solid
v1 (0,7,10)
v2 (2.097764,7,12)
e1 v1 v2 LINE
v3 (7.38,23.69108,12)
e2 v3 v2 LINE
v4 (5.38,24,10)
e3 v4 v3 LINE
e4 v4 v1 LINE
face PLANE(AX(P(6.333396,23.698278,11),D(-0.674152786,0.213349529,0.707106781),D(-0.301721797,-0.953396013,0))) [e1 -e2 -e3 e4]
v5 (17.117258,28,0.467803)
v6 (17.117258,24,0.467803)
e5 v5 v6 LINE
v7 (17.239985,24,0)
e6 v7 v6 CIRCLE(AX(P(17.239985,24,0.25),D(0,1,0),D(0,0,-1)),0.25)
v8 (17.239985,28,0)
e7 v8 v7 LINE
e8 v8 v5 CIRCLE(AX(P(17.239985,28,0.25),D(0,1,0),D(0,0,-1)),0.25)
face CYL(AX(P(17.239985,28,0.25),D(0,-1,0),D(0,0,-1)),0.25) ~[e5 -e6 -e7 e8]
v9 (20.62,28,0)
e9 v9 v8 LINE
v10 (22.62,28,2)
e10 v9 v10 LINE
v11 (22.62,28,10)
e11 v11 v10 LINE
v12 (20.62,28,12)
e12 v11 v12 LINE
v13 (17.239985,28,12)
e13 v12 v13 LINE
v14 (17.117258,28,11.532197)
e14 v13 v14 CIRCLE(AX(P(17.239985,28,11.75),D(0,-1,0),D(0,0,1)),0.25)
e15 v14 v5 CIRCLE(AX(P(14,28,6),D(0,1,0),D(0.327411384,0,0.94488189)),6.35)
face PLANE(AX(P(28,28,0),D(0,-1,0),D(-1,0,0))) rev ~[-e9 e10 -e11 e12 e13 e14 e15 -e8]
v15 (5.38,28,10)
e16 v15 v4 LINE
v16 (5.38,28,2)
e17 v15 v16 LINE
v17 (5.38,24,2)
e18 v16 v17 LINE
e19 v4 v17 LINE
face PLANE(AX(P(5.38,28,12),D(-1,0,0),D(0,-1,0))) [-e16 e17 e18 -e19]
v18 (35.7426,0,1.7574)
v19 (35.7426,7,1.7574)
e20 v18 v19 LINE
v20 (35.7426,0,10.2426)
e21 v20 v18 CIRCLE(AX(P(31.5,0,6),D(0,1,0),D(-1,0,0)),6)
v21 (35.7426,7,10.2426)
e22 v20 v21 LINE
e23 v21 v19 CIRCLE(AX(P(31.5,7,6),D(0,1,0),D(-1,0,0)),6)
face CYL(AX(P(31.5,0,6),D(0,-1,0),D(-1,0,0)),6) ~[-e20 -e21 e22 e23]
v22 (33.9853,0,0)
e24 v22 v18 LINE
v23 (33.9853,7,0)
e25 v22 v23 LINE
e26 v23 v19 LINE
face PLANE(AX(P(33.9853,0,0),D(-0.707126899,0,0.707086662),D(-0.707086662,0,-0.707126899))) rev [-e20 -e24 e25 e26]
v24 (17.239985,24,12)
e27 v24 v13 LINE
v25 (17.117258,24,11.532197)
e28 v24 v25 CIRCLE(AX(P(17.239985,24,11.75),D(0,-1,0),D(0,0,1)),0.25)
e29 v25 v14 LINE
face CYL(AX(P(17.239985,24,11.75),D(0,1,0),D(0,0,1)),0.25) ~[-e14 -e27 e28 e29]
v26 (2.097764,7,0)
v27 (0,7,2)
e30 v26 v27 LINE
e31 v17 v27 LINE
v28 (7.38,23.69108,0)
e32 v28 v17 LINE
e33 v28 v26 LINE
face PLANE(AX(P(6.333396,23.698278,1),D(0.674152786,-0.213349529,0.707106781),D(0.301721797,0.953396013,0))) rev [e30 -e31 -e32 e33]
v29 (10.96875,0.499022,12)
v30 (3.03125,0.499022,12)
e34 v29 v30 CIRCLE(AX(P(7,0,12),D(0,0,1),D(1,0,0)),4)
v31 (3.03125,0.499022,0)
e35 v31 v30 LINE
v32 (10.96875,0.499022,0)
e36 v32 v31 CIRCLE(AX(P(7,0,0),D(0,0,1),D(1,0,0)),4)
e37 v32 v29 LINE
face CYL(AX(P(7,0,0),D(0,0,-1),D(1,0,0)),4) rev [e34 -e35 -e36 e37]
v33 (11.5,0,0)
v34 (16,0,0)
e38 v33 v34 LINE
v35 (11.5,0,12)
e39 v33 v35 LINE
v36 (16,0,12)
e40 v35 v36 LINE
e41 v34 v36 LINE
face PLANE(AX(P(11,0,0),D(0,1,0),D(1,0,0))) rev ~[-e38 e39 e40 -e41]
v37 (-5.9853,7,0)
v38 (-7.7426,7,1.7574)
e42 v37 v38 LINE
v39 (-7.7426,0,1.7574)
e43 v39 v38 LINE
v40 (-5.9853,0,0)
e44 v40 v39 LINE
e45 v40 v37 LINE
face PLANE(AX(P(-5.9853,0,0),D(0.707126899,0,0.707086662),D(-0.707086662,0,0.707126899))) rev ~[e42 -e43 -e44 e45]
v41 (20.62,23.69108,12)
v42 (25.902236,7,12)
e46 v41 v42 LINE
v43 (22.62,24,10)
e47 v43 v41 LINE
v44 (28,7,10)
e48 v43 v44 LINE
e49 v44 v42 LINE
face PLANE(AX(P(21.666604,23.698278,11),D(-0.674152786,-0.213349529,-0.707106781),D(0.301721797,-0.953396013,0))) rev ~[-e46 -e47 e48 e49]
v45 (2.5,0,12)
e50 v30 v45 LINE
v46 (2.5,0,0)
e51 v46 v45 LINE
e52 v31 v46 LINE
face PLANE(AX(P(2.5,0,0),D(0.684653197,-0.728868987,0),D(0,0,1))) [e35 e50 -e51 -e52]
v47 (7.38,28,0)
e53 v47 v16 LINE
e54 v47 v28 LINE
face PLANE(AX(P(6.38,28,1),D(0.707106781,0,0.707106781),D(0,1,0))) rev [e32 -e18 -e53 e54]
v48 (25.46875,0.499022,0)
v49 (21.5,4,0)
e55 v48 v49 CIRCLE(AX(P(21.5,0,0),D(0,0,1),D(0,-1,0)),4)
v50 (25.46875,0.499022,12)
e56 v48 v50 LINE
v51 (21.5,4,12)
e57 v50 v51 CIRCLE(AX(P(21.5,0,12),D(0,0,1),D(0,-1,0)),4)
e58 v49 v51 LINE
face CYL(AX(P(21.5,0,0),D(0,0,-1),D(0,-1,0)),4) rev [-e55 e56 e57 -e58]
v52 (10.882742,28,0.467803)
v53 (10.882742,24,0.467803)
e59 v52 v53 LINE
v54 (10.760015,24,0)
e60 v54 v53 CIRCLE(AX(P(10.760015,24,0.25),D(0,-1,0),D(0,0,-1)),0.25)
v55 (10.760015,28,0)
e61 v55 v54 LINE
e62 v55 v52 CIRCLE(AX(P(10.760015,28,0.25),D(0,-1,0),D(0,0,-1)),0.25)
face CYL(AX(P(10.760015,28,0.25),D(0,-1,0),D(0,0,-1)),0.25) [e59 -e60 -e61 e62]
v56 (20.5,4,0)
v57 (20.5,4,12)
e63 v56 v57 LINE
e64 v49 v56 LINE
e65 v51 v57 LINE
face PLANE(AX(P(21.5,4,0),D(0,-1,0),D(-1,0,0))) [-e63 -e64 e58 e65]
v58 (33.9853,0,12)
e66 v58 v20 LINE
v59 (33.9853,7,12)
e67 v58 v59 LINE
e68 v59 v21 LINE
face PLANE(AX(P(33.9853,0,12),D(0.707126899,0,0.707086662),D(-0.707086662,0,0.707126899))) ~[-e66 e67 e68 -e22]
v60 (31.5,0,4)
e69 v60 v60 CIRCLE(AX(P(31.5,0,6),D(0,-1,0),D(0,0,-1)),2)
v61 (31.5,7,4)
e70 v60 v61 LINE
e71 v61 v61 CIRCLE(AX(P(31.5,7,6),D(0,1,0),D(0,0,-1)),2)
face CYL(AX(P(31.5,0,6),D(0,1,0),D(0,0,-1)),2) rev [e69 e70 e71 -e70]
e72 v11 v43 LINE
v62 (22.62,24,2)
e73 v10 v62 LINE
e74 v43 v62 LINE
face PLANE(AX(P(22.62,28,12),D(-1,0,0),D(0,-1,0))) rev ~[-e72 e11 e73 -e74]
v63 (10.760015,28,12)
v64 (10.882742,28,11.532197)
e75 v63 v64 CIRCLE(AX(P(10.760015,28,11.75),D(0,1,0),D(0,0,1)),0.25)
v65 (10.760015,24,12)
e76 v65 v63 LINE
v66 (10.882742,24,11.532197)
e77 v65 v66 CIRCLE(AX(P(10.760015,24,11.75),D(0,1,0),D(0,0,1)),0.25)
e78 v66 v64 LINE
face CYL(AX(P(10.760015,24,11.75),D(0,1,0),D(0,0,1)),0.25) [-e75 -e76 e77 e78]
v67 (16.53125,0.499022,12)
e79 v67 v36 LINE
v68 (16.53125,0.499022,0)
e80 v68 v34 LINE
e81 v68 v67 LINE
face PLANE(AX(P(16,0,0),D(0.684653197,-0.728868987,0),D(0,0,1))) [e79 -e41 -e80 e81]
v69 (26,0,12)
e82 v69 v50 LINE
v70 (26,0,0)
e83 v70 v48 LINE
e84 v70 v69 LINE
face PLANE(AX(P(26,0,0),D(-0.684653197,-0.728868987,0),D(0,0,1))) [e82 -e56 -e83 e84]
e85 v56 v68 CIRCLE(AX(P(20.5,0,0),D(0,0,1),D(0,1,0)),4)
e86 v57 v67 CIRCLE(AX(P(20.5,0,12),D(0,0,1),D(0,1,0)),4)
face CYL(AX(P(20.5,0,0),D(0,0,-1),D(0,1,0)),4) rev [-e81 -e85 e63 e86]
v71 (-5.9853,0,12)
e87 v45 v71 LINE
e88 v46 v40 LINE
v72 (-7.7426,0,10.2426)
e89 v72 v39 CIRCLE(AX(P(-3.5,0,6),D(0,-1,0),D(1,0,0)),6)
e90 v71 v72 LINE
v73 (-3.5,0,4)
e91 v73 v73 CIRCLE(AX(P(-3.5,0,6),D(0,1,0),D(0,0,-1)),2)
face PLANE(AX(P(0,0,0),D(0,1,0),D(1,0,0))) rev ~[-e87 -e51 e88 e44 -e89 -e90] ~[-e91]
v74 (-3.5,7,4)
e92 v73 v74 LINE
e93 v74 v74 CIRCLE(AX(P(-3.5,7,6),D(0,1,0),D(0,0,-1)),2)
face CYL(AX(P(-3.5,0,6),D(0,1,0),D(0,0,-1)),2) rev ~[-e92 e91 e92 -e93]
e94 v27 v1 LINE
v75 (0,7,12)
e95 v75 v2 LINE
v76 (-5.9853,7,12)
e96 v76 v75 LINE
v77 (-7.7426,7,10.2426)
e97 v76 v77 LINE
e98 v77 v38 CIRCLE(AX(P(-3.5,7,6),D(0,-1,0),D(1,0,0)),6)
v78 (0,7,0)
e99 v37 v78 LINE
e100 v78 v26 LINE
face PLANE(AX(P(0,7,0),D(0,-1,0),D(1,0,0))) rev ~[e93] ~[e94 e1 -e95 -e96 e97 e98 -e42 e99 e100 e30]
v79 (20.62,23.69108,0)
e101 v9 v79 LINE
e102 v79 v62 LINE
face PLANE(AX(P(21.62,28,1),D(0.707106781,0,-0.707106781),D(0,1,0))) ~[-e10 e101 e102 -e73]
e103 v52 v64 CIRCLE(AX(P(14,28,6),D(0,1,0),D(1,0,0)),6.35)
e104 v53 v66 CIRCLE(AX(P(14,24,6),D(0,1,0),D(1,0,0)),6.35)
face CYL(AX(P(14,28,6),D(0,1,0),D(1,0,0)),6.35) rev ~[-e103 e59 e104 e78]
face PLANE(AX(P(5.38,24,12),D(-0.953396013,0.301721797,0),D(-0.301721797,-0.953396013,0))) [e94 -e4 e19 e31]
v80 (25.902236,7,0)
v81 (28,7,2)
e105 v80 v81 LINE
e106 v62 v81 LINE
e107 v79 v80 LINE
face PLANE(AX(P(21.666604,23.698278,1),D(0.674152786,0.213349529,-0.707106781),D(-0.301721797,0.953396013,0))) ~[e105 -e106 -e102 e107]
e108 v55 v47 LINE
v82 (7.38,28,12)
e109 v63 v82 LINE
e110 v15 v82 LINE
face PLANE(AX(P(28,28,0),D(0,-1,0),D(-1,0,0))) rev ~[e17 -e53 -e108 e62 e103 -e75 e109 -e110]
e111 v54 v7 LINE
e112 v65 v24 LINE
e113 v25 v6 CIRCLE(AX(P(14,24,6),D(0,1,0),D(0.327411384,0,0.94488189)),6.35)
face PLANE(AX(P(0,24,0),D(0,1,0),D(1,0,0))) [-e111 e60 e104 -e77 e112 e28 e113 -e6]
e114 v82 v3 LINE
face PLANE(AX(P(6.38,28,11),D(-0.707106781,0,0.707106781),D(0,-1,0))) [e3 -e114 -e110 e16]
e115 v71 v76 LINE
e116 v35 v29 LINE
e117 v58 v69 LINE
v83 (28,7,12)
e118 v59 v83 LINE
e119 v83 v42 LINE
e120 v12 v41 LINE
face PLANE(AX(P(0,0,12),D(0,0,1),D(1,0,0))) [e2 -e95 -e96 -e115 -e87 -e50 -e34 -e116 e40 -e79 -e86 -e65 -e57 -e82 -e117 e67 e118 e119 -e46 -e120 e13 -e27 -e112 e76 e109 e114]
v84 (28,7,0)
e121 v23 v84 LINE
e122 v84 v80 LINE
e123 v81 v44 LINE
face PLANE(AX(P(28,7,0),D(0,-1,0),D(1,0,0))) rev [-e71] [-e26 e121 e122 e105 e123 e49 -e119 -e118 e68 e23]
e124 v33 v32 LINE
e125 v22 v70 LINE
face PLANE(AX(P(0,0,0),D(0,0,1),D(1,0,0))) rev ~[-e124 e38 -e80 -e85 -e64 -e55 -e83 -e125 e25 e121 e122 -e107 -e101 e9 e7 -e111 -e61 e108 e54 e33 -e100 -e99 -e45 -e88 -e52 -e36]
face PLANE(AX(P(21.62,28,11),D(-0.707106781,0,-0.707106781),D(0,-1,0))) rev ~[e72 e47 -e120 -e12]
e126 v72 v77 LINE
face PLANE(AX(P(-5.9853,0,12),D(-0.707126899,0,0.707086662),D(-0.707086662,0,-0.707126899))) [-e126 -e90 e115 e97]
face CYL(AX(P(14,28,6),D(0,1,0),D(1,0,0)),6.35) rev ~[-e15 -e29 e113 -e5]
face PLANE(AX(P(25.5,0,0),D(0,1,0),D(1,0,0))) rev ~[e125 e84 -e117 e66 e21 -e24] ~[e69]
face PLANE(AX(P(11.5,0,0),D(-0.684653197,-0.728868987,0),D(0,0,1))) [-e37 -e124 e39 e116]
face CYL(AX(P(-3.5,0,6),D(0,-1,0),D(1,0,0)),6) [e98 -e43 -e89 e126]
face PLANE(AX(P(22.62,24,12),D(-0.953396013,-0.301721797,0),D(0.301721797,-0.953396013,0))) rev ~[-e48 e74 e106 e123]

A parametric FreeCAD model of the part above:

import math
import FreeCAD as App
import Part
import Sketcher
from FreeCAD import Vector
Q = App.Units.Quantity


def edges_at(feature, points):
    """Names of the edges that pass closest to the given points."""
    edges = feature.Shape.Edges
    near = lambda p: min(range(len(edges)), key=lambda i: edges[i].distToShape(Part.Vertex(*p))[0])
    return sorted({f"Edge{near(p) + 1}" for p in points})

doc = App.newDocument("Part")
body = doc.addObject("PartDesign::Body", "Body")

sketch1 = body.newObject("Sketcher::SketchObject", "Sketch")
sketch1.AttachmentSupport = (doc.getObject("XY_Plane"), [""])
sketch1.MapMode = "FlatFace"
sketch1.addGeometry([
    Part.LineSegment(Vector(0, 28, 0), Vector(0, 0, 0)),
    Part.LineSegment(Vector(0, 0, 0), Vector(3, 0, 0)),
    Part.ArcOfCircle(Part.Circle(Vector(7, 0, 0), Vector(0, 0, 1), 4), math.radians(0), math.radians(180)),
    Part.LineSegment(Vector(11, 0, 0), Vector(16.5, 0, 0)),
    Part.ArcOfCircle(Part.Circle(Vector(20.5, 0, 0), Vector(0, 0, 1), 4), math.radians(90), math.radians(180)),
    Part.LineSegment(Vector(20.5, 4, 0), Vector(21.5, 4, 0)),
    Part.ArcOfCircle(Part.Circle(Vector(21.5, 0, 0), Vector(0, 0, 1), 4), math.radians(0), math.radians(90)),
    Part.LineSegment(Vector(25.5, 0, 0), Vector(28, 0, 0)),
    Part.LineSegment(Vector(28, 0, 0), Vector(28, 28, 0)),
    Part.LineSegment(Vector(28, 28, 0), Vector(0, 28, 0)),
], False)
sketch1.addConstraint([
    Sketcher.Constraint("Coincident", 0, 2, 1, 1),
    Sketcher.Constraint("Coincident", 1, 2, 2, 2),
    Sketcher.Constraint("Coincident", 2, 1, 3, 1),
    Sketcher.Constraint("Coincident", 3, 2, 4, 2),
    Sketcher.Constraint("Tangent", 4, 1, 5, 1),
    Sketcher.Constraint("Tangent", 5, 2, 6, 2),
    Sketcher.Constraint("Coincident", 6, 1, 7, 1),
    Sketcher.Constraint("Coincident", 7, 2, 8, 1),
    Sketcher.Constraint("Coincident", 8, 2, 9, 1),
    Sketcher.Constraint("Coincident", 9, 2, 0, 1),
    Sketcher.Constraint("Vertical", 0),
    Sketcher.Constraint("Horizontal", 1),
    Sketcher.Constraint("Horizontal", 3),
    Sketcher.Constraint("Horizontal", 5),
    Sketcher.Constraint("Horizontal", 7),
    Sketcher.Constraint("Vertical", 8),
    Sketcher.Constraint("Horizontal", 9),
    Sketcher.Constraint("Coincident", 0, 2, -1, 1),
    Sketcher.Constraint("Equal", 2, 4),
    Sketcher.Constraint("Equal", 4, 6),
    Sketcher.Constraint("PointOnObject", 2, 3, -1),
    Sketcher.Constraint("PointOnObject", 4, 3, -1),
    Sketcher.Constraint("PointOnObject", 2, 1, -1),
    Sketcher.Constraint("PointOnObject", 6, 1, -1),
    Sketcher.Constraint("Equal", 9, 0),
    Sketcher.Constraint("Radius", 2, Q("4 mm")),
    Sketcher.Constraint("DistanceX", 5, 1, 5, 2, Q("1 mm")),
    Sketcher.Constraint("DistanceX", 9, 2, 9, 1, Q("28 mm")),
    Sketcher.Constraint("DistanceX", -1, 1, 2, 3, Q("7 mm")),
    Sketcher.Constraint("DistanceX", 3, 1, 3, 2, Q("5.5 mm")),
])
pad1 = body.newObject("PartDesign::Pad", "Pad")
pad1.Profile = sketch1
pad1.Length = 12
doc.recompute()

chamfer = body.newObject("PartDesign::Chamfer", "Chamfer")
chamfer.Base = (pad1, edges_at(pad1, [
    (3, 0, 6),
    (11, 0, 6),
    (16.5, 0, 6),
    (25.5, 0, 6),
]))
chamfer.Size = 0.5

sketch2 = body.newObject("Sketcher::SketchObject", "Sketch001")
sketch2.AttachmentSupport = (doc.getObject("XZ_Plane"), [""])
sketch2.MapMode = "FlatFace"
sketch2.AttachmentOffset = App.Placement(Vector(0, 0, -28), App.Rotation())
sketch2.addGeometry([
    Part.ArcOfCircle(Part.Circle(Vector(14, 6, 0), Vector(0, 0, 1), 6.3), math.radians(-71), math.radians(251)),
    Part.LineSegment(Vector(16.1, 0, 0), Vector(11.9, 0, 0)),
], False)
sketch2.addConstraint([
    Sketcher.Constraint("Coincident", 0, 1, 1, 1),
    Sketcher.Constraint("Coincident", 1, 2, 0, 2),
    Sketcher.Constraint("Horizontal", 1),
    Sketcher.Constraint("PointOnObject", 0, 1, -1),
    Sketcher.Constraint("Radius", 0, Q("6.35 mm")),
    Sketcher.Constraint("DistanceX", -1, 1, 0, 3, Q("14 mm")),
    Sketcher.Constraint("DistanceY", -1, 1, 0, 3, Q("6 mm")),
])
pocket1 = body.newObject("PartDesign::Pocket", "Pocket")
pocket1.Profile = sketch2
pocket1.Length = 4
pocket1.Reversed = True
doc.recompute()

fillet = body.newObject("PartDesign::Fillet", "Fillet")
fillet.Base = (pocket1, edges_at(pocket1, [
    (11.921, 26, 0),
    (16.079, 26, 0),
    (11.921, 26, 12),
    (16.079, 26, 12),
]))
fillet.Radius = 0.25

sketch3 = body.newObject("Sketcher::SketchObject", "Sketch002")
sketch3.AttachmentSupport = (doc.getObject("XZ_Plane"), [""])
sketch3.MapMode = "FlatFace"
sketch3.addGeometry([
    Part.LineSegment(Vector(0, 12, 0), Vector(-6, 12, 0)),
    Part.LineSegment(Vector(-6, 12, 0), Vector(-7.7, 10.2, 0)),
    Part.ArcOfCircle(Part.Circle(Vector(-3.5, 6, 0), Vector(0, 0, 1), 6), math.radians(135), math.radians(225)),
    Part.LineSegment(Vector(-7.7, 1.8, 0), Vector(-6, 0, 0)),
    Part.LineSegment(Vector(-6, 0, 0), Vector(0, 0, 0)),
    Part.LineSegment(Vector(0, 0, 0), Vector(0, 12, 0)),
], False)
sketch3.addConstraint([
    Sketcher.Constraint("Coincident", 0, 2, 1, 1),
    Sketcher.Constraint("Tangent", 1, 2, 2, 1),
    Sketcher.Constraint("Tangent", 2, 2, 3, 1),
    Sketcher.Constraint("Coincident", 3, 2, 4, 1),
    Sketcher.Constraint("Coincident", 4, 2, 5, 1),
    Sketcher.Constraint("Coincident", 5, 2, 0, 1),
    Sketcher.Constraint("Horizontal", 0),
    Sketcher.Constraint("Horizontal", 4),
    Sketcher.Constraint("Vertical", 5),
    Sketcher.Constraint("Coincident", 4, 2, -1, 1),
    Sketcher.Constraint("Perpendicular", 1, 3),
    Sketcher.Constraint("Vertical", 1, 2, 2, 2),
    Sketcher.Constraint("Vertical", 0, 2, 3, 2),
    Sketcher.Constraint("Radius", 2, Q("6 mm")),
    Sketcher.Constraint("DistanceY", 5, 1, 5, 2, Q("12 mm")),
    Sketcher.Constraint("DistanceX", 2, 3, -1, 1, Q("3.5 mm")),
])
pad2 = body.newObject("PartDesign::Pad", "Pad001")
pad2.Profile = sketch3
pad2.Length = 7
pad2.Reversed = True

sketch4 = body.newObject("Sketcher::SketchObject", "Sketch003")
sketch4.AttachmentSupport = (doc.getObject("XZ_Plane"), [""])
sketch4.MapMode = "FlatFace"
sketch4.addGeometry(Part.Circle(Vector(-3.5, 6, 0), Vector(0, 0, 1), 2), False)
sketch4.addConstraint([
    Sketcher.Constraint("Diameter", 0, Q("4 mm")),
    Sketcher.Constraint("DistanceY", -1, 1, 0, 3, Q("6 mm")),
    Sketcher.Constraint("DistanceX", 0, 3, -1, 1, Q("3.5 mm")),
])
doc.recompute()
hole = body.newObject("PartDesign::Hole", "Hole")
hole.Profile = sketch4
hole.ThreadType = "None"
hole.Diameter = 4
hole.DepthType = "ThroughAll"
doc.recompute()

datumplane = body.newObject("PartDesign::Plane", "DatumPlane")
datumplane.AttachmentSupport = (doc.getObject("YZ_Plane"), [""])
datumplane.MapMode = "FlatFace"
datumplane.AttachmentOffset = App.Placement(Vector(0, 0, 14), App.Rotation())
mirrored = body.newObject("PartDesign::Mirrored", "Mirrored")
mirrored.Originals = [pad2, hole]
mirrored.MirrorPlane = (datumplane, [""])
body.Tip = mirrored

sketch5 = body.newObject("Sketcher::SketchObject", "Sketch004")
sketch5.AttachmentSupport = (doc.getObject("XY_Plane"), [""])
sketch5.MapMode = "FlatFace"
sketch5.AttachmentOffset = App.Placement(Vector(0, 0, 12), App.Rotation())
sketch5.addGeometry([
    Part.LineSegment(Vector(28, 7, 0), Vector(28, 28, 0)),
    Part.LineSegment(Vector(28, 28, 0), Vector(22.6, 28, 0)),
    Part.LineSegment(Vector(22.6, 28, 0), Vector(22.6, 24, 0)),
    Part.LineSegment(Vector(22.6, 24, 0), Vector(28, 7, 0)),
    Part.LineSegment(Vector(5.4, 24, 0), Vector(5.4, 28, 0)),
    Part.LineSegment(Vector(5.4, 28, 0), Vector(0, 28, 0)),
    Part.LineSegment(Vector(0, 28, 0), Vector(0, 7, 0)),
    Part.LineSegment(Vector(0, 7, 0), Vector(5.4, 24, 0)),
], False)
sketch5.addConstraint([
    Sketcher.Constraint("Coincident", 0, 2, 1, 1),
    Sketcher.Constraint("Coincident", 1, 2, 2, 1),
    Sketcher.Constraint("Coincident", 2, 2, 3, 1),
    Sketcher.Constraint("Coincident", 3, 2, 0, 1),
    Sketcher.Constraint("Coincident", 4, 2, 5, 1),
    Sketcher.Constraint("Coincident", 5, 2, 6, 1),
    Sketcher.Constraint("Coincident", 6, 2, 7, 1),
    Sketcher.Constraint("Coincident", 7, 2, 4, 1),
    Sketcher.Constraint("Vertical", 0),
    Sketcher.Constraint("Horizontal", 1),
    Sketcher.Constraint("Vertical", 2),
    Sketcher.Constraint("Vertical", 4),
    Sketcher.Constraint("Horizontal", 5),
    Sketcher.Constraint("Vertical", 6),
    Sketcher.Constraint("PointOnObject", 5, 2, -2),
    Sketcher.Constraint("Horizontal", 1, 2, 4, 2),
    Sketcher.Constraint("Horizontal", 3, 2, 6, 2),
    Sketcher.Constraint("Horizontal", 2, 2, 7, 2),
    Sketcher.Constraint("Equal", 1, 5),
    Sketcher.Constraint("DistanceY", 0, 1, 0, 2, Q("21 mm")),
    Sketcher.Constraint("DistanceY", 2, 2, 2, 1, Q("4 mm")),
    Sketcher.Constraint("DistanceX", -1, 1, 0, 2, Q("28 mm")),
    Sketcher.Constraint("DistanceY", -1, 1, 0, 2, Q("28 mm")),
    Sketcher.Constraint("DistanceX", 1, 2, 1, 1, Q("5.38 mm")),
])
pocket2 = body.newObject("PartDesign::Pocket", "Pocket001")
pocket2.Profile = sketch5
pocket2.Type = "ThroughAll"
doc.recompute()

chamfer2 = body.newObject("PartDesign::Chamfer", "Chamfer001")
chamfer2.Base = (pocket2, edges_at(pocket2, [
    (22.62, 26, 12),
    (25.31, 15.5, 12),
    (22.62, 26, 0),
    (25.31, 15.5, 0),
    (2.69, 15.5, 12),
    (2.69, 15.5, 0),
    (5.38, 26, 0),
    (5.38, 26, 12),
]))
chamfer2.Size = 2

doc.recompute()
